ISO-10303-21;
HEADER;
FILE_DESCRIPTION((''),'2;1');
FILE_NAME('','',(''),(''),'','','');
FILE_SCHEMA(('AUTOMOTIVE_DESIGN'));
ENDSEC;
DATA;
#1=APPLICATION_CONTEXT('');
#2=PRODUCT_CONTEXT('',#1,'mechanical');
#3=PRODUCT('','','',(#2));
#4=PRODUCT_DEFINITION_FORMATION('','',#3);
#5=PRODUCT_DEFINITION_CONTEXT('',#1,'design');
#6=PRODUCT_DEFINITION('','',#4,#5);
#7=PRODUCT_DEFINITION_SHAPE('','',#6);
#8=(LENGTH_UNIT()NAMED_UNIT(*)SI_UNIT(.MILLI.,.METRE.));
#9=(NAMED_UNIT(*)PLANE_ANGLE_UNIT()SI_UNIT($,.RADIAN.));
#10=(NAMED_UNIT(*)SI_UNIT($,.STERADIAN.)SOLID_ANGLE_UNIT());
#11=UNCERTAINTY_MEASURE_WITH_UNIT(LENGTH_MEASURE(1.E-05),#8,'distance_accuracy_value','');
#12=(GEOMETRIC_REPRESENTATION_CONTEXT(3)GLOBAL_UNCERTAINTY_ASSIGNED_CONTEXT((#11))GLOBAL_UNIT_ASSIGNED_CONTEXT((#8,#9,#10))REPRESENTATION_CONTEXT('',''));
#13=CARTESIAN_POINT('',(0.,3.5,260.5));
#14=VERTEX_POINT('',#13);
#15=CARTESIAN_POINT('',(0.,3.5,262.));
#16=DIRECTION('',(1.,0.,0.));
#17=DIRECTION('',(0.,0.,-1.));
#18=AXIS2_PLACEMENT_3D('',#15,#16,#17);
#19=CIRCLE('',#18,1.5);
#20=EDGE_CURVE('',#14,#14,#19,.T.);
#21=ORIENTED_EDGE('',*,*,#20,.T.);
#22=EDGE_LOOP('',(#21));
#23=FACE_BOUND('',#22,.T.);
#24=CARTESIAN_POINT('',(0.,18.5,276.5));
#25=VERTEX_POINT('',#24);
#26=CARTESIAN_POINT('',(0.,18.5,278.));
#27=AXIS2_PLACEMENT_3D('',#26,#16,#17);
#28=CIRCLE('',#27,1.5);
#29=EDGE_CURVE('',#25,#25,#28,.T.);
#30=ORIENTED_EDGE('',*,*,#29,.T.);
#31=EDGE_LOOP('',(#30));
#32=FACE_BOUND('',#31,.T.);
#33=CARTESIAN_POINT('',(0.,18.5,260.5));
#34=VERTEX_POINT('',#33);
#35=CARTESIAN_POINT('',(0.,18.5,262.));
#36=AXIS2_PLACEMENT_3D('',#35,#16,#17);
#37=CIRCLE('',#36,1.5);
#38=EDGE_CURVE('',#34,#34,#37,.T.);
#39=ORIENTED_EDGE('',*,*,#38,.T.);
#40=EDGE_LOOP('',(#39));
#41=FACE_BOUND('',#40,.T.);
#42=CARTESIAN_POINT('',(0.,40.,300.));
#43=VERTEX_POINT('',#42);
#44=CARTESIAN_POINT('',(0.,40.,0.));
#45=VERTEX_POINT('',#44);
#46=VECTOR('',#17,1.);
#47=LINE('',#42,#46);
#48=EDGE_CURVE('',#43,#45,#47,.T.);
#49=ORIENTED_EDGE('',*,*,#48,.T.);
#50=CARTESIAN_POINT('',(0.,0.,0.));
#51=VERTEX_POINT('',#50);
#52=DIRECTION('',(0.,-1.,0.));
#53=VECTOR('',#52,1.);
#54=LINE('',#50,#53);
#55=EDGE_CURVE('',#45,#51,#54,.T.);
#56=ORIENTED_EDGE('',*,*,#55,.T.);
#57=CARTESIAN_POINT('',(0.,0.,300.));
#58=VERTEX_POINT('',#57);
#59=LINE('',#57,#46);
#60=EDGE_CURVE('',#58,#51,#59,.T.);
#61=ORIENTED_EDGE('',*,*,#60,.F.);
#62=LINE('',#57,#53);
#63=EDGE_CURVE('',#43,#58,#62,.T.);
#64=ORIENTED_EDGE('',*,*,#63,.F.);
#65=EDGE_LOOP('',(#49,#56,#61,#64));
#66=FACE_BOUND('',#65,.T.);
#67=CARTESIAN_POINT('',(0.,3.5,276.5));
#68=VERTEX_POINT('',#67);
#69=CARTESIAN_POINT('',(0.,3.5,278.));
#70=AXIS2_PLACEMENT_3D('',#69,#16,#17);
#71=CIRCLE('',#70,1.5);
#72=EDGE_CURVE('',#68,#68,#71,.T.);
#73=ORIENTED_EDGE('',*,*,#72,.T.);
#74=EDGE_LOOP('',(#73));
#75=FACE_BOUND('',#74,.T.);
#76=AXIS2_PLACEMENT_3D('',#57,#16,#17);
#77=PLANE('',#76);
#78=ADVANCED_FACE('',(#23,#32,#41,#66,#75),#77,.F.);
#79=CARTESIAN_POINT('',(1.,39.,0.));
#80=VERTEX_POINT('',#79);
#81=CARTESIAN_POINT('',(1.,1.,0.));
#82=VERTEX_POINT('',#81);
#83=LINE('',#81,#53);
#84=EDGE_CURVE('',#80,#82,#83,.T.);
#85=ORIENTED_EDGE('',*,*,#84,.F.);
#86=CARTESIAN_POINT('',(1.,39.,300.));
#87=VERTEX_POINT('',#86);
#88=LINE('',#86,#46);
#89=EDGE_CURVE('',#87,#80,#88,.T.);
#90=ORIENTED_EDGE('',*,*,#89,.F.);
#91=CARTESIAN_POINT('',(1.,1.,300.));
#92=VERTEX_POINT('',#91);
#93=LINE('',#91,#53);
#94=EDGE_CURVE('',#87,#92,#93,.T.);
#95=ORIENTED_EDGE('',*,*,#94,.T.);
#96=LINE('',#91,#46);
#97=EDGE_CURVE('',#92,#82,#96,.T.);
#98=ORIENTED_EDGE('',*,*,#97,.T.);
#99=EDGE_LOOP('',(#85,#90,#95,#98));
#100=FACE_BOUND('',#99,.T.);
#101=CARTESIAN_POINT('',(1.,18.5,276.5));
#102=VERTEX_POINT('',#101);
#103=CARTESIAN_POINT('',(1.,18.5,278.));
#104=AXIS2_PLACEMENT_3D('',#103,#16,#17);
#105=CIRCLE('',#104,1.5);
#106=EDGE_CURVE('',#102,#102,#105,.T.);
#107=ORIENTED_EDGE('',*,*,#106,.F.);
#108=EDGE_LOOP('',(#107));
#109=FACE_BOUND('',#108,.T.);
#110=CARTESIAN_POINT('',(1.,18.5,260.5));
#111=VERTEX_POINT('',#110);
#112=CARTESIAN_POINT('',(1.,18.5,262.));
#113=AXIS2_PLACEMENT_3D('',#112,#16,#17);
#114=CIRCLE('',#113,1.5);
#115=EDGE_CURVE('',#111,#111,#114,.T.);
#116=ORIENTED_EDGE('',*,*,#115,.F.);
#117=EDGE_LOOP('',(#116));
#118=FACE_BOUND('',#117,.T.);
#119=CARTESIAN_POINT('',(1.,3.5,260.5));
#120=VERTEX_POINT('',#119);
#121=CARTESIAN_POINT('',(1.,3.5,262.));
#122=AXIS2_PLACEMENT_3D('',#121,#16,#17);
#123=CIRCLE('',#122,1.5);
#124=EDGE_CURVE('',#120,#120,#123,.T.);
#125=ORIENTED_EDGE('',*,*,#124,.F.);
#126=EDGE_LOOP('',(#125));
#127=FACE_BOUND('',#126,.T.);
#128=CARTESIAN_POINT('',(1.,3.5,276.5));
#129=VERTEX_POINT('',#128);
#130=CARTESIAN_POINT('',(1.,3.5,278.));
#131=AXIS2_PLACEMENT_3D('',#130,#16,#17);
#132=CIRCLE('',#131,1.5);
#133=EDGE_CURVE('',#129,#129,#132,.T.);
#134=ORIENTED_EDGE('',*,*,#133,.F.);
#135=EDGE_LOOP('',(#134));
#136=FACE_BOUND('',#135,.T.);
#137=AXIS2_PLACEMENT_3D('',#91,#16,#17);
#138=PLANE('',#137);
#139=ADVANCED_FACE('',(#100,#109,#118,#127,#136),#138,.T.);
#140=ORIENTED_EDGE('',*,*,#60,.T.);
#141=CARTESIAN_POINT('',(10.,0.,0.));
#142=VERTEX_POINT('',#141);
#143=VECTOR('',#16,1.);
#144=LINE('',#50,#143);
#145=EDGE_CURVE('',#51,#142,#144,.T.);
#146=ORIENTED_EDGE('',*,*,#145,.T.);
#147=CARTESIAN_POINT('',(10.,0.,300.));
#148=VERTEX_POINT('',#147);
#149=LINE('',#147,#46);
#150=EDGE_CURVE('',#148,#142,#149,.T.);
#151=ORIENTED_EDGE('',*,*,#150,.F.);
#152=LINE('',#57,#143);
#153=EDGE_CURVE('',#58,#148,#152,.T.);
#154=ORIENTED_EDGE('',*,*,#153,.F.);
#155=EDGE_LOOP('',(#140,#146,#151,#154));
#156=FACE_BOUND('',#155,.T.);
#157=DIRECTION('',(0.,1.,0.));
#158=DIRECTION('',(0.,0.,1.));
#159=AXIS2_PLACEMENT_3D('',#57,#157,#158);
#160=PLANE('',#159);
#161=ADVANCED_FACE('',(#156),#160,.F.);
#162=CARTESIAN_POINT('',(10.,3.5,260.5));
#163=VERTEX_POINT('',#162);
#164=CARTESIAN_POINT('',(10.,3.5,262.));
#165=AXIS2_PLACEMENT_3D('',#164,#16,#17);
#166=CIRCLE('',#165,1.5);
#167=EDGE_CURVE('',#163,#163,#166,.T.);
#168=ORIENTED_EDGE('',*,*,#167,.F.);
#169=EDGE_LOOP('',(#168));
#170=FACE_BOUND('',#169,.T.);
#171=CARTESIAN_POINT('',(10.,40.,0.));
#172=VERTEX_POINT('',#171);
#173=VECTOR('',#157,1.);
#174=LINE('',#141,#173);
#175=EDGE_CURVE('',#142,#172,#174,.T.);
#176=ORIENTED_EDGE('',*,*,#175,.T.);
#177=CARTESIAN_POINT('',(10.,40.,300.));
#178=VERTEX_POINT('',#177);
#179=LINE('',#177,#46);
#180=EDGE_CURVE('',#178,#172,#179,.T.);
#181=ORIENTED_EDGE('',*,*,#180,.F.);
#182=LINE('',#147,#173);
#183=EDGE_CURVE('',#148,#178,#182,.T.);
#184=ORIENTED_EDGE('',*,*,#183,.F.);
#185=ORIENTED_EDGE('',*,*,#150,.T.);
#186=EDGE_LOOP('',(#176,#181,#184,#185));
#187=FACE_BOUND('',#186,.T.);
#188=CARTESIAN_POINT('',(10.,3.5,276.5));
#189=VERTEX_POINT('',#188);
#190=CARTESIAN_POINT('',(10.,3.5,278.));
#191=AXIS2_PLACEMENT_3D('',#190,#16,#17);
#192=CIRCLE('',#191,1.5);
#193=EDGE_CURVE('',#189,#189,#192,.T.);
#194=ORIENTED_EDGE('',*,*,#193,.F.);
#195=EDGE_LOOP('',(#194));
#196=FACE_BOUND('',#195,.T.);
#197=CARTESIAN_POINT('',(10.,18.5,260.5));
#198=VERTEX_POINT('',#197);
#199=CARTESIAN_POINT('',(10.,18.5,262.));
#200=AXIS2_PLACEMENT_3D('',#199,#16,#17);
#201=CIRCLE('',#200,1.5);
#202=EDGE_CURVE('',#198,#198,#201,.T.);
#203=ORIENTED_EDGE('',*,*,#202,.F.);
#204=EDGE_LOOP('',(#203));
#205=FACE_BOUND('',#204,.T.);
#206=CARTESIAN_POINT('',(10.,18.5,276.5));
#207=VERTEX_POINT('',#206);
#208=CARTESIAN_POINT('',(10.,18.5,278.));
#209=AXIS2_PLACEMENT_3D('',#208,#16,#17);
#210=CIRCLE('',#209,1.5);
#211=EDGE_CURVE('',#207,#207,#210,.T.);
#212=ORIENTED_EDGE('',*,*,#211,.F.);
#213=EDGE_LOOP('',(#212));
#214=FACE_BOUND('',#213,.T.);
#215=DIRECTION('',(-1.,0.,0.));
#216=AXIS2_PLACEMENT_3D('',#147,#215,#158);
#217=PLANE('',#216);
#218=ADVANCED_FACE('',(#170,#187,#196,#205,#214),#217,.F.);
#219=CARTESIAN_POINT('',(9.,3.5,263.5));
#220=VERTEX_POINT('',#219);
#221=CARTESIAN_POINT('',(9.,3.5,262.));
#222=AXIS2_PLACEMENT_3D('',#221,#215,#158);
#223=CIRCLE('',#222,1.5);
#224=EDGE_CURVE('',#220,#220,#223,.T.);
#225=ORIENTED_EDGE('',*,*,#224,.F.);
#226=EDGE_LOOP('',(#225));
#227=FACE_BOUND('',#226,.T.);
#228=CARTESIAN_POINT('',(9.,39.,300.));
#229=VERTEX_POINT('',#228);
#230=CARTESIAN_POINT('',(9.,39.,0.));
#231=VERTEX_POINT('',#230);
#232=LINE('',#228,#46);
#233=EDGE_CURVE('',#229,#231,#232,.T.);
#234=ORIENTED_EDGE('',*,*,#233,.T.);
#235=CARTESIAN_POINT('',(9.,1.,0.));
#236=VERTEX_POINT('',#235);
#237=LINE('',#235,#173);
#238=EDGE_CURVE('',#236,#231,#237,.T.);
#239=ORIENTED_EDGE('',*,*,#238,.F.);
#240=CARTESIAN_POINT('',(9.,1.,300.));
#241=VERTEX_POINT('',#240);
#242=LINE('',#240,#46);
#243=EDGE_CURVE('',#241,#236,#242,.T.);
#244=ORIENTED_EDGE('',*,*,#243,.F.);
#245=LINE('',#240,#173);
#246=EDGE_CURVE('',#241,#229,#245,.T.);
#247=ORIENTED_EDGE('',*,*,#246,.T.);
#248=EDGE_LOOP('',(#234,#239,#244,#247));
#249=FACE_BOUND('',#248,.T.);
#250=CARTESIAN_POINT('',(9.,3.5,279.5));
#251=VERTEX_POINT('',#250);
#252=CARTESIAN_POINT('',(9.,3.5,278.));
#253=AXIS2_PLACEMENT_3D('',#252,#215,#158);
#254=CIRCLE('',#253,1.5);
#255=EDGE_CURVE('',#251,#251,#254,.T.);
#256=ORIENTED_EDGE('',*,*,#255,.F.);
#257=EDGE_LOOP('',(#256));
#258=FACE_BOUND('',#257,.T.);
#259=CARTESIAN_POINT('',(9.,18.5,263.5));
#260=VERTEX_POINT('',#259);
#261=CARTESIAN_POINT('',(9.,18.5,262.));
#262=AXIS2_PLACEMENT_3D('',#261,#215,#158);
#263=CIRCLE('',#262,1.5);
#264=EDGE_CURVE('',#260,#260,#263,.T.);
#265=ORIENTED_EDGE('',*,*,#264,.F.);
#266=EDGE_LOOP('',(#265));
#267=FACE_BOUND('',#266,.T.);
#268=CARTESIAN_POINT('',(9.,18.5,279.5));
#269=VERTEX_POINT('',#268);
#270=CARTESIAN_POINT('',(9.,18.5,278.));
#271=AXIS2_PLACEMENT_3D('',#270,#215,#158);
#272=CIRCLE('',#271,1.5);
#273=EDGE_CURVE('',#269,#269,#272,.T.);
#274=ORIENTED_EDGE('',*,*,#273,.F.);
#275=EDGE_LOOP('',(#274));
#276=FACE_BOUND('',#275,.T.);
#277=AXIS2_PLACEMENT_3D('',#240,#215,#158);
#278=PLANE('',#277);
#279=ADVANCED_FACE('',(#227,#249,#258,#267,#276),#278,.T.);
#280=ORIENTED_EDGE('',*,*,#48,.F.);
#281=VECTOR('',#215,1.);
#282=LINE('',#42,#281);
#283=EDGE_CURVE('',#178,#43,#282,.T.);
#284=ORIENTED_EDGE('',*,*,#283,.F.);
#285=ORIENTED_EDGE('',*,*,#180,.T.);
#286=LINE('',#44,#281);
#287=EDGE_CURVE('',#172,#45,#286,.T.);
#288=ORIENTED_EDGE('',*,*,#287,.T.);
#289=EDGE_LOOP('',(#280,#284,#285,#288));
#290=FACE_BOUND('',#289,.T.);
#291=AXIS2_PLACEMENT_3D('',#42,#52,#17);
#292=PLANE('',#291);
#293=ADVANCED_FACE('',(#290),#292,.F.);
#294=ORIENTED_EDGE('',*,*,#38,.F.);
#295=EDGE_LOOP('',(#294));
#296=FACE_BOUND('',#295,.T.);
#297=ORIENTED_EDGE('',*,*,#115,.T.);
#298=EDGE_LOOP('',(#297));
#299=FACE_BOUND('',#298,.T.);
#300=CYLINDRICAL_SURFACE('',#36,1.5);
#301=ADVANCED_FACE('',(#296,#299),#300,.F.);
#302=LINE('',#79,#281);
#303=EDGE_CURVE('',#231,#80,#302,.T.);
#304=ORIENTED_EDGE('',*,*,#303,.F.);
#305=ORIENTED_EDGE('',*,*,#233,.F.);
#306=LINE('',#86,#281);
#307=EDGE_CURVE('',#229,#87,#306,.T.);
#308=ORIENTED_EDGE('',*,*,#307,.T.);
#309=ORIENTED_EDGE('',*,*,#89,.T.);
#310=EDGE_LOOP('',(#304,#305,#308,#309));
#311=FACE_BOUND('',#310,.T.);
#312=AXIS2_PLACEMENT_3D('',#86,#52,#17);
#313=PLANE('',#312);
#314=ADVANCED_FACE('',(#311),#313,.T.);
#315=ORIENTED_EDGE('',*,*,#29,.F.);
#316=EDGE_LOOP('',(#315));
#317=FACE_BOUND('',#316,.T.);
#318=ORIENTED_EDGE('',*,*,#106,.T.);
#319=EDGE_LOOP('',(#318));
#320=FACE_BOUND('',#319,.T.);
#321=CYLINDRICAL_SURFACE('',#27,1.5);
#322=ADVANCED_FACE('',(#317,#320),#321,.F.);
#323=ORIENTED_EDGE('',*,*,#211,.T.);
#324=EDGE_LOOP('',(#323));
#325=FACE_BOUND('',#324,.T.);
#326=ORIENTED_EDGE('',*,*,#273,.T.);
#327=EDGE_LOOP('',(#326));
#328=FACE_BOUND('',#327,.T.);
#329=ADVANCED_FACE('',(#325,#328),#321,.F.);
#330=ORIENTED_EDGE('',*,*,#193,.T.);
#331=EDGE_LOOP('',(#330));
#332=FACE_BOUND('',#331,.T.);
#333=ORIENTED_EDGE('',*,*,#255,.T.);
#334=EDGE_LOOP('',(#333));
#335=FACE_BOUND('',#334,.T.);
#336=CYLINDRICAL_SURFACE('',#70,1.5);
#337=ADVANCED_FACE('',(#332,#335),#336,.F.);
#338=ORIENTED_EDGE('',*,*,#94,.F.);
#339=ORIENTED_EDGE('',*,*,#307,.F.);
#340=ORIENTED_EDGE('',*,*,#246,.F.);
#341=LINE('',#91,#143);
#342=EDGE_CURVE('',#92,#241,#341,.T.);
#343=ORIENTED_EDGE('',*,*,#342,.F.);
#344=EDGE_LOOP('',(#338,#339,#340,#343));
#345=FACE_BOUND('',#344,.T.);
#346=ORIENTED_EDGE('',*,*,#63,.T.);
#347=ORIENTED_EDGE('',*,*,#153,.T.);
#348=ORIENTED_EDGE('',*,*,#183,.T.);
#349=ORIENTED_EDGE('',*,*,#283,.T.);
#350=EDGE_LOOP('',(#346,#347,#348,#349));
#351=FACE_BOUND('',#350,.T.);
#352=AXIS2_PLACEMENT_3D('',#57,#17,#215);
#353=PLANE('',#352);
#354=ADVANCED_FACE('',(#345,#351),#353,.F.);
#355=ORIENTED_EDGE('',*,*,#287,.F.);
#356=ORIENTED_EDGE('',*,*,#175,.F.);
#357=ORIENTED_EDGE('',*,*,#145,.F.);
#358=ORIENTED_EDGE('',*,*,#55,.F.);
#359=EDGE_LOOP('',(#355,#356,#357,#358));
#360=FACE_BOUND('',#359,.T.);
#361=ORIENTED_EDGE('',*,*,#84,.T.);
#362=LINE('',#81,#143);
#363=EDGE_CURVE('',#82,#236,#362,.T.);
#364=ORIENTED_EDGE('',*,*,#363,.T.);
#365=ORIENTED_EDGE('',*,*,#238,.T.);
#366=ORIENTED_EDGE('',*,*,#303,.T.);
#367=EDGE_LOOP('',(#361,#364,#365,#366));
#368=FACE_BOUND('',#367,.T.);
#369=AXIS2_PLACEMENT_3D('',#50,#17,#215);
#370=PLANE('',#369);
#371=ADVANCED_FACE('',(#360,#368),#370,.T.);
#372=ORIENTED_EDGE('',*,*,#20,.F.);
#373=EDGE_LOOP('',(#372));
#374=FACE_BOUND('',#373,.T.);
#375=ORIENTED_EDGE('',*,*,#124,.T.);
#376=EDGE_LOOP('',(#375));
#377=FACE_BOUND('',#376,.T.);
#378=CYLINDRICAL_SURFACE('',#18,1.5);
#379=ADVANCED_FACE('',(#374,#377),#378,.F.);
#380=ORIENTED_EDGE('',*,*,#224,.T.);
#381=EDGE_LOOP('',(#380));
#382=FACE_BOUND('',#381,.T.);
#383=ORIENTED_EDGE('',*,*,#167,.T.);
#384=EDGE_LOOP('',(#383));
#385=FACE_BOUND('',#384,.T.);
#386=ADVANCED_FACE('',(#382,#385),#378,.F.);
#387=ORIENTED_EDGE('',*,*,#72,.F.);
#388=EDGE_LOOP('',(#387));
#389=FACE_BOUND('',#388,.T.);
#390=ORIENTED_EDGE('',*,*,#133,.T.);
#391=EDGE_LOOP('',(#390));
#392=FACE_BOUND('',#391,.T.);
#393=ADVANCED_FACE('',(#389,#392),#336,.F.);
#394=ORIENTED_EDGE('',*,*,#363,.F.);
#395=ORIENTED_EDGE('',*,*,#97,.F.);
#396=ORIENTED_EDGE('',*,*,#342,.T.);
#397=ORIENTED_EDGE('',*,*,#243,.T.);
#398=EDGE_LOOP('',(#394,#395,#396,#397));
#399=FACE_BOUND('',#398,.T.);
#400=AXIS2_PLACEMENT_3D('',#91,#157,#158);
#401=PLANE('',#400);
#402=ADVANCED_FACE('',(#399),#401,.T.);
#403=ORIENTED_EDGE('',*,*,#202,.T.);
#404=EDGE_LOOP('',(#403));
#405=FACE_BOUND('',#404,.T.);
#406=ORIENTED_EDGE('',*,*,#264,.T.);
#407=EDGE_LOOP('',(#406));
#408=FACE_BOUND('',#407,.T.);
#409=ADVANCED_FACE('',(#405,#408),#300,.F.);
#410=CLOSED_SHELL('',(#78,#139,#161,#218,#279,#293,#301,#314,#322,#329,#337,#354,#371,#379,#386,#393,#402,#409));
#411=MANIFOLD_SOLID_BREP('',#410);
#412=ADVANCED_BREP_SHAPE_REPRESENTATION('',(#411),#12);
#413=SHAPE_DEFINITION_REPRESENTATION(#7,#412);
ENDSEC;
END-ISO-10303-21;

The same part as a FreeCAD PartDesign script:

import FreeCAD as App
import Part
import Sketcher
from FreeCAD import Vector

doc = App.newDocument("Part")
params = doc.addObject("Spreadsheet::Sheet", "Params")
for row, (alias, value) in enumerate([
    ("sketch1_width", "10 mm"),
    ("sketch1_width2", "8 mm"),
    ("sketch1_height", "40 mm"),
    ("sketch1_height2", "38 mm"),
    ("pad1_length", "300 mm"),
    ("sketch2_diameter", "3 mm"),
    ("pocket1_length", "10 mm"),
], start=1):
    params.set(f"A{row}", alias)
    params.set(f"B{row}", "=" + value)
    params.setAlias(f"B{row}", alias)

body = doc.addObject("PartDesign::Body", "Body")

# Sketch on XY plane
sketch1 = doc.addObject("Sketcher::SketchObject", "Sketch")
body.addObject(sketch1)
sketch1.AttachmentSupport = (doc.XY_Plane, [""])
sketch1.MapMode = "FlatFace"
sketch1.addGeometry([
    Part.LineSegment(Vector(0, 40, 0), Vector(0, 0, 0)),  # 0
    Part.LineSegment(Vector(0, 0, 0), Vector(10, 0, 0)),  # 1
    Part.LineSegment(Vector(10, 0, 0), Vector(10, 40, 0)),  # 2
    Part.LineSegment(Vector(10, 40, 0), Vector(0, 40, 0)),  # 3
    Part.LineSegment(Vector(9, 1, 0), Vector(1, 1, 0)),  # 4
    Part.LineSegment(Vector(1, 1, 0), Vector(1, 39, 0)),  # 5
    Part.LineSegment(Vector(1, 39, 0), Vector(9, 39, 0)),  # 6
    Part.LineSegment(Vector(9, 39, 0), Vector(9, 1, 0)),  # 7
], False)
sketch1.addConstraint([
    Sketcher.Constraint("Coincident", 0, 2, 1, 1),
    Sketcher.Constraint("Coincident", 1, 2, 2, 1),
    Sketcher.Constraint("Coincident", 2, 2, 3, 1),
    Sketcher.Constraint("Coincident", 3, 2, 0, 1),
    Sketcher.Constraint("Coincident", 4, 2, 5, 1),
    Sketcher.Constraint("Coincident", 5, 2, 6, 1),
    Sketcher.Constraint("Coincident", 6, 2, 7, 1),
    Sketcher.Constraint("Coincident", 7, 2, 4, 1),
    Sketcher.Constraint("Vertical", 0),
    Sketcher.Constraint("Horizontal", 1),
    Sketcher.Constraint("Vertical", 2),
    Sketcher.Constraint("Horizontal", 3),
    Sketcher.Constraint("Horizontal", 4),
    Sketcher.Constraint("Vertical", 5),
    Sketcher.Constraint("Horizontal", 6),
    Sketcher.Constraint("Vertical", 7),
    Sketcher.Constraint("Coincident", 0, 2, -1, 1),
    Sketcher.Constraint("DistanceX", 1, 1, 1, 2, 10.0),
    Sketcher.Constraint("DistanceX", 4, 2, 4, 1, 8.0),
    Sketcher.Constraint("DistanceY", 0, 2, 0, 1, 40.0),
    Sketcher.Constraint("DistanceY", 5, 1, 5, 2, 38.0),
    Sketcher.Constraint("DistanceX", -1, 1, 4, 2, 1.0),
    Sketcher.Constraint("DistanceY", -1, 1, 4, 2, 1.0),
])
sketch1.setExpression("Constraints[17]", "Params.sketch1_width")
sketch1.setExpression("Constraints[18]", "Params.sketch1_width2")
sketch1.setExpression("Constraints[19]", "Params.sketch1_height")
sketch1.setExpression("Constraints[20]", "Params.sketch1_height2")
pad1 = doc.addObject("PartDesign::Pad", "Pad")
body.addObject(pad1)
pad1.Profile = sketch1
pad1.setExpression("Length", "Params.pad1_length")

# Sketch on YZ plane
sketch2 = doc.addObject("Sketcher::SketchObject", "Sketch001")
body.addObject(sketch2)
sketch2.AttachmentSupport = (doc.YZ_Plane, [""])
sketch2.MapMode = "FlatFace"
sketch2.AttachmentOffset = App.Placement(Vector(0, 0, 10), App.Rotation())
sketch2.addGeometry([
    Part.Circle(Vector(18.5, 278, 0), Vector(0, 0, 1), 1.5),
    Part.Circle(Vector(18.5, 262, 0), Vector(0, 0, 1), 1.5),
    Part.Circle(Vector(3.5, 262, 0), Vector(0, 0, 1), 1.5),
    Part.Circle(Vector(3.5, 278, 0), Vector(0, 0, 1), 1.5),
], False)
sketch2.addConstraint([
    Sketcher.Constraint("Equal", 0, 1),
    Sketcher.Constraint("Equal", 1, 2),
    Sketcher.Constraint("Equal", 2, 3),
    Sketcher.Constraint("Horizontal", 1, 3, 2, 3),
    Sketcher.Constraint("Horizontal", 0, 3, 3, 3),
    Sketcher.Constraint("Vertical", 0, 3, 1, 3),
    Sketcher.Constraint("Vertical", 2, 3, 3, 3),
    Sketcher.Constraint("Diameter", 0, 3.0),
    Sketcher.Constraint("DistanceY", -1, 1, 0, 3, 278.0),
    Sketcher.Constraint("DistanceY", -1, 1, 1, 3, 262.0),
    Sketcher.Constraint("DistanceX", 2, 3, 1, 3, 15.0),
    Sketcher.Constraint("DistanceX", -1, 1, 0, 3, 18.5),
])
sketch2.setExpression("Constraints[7]", "Params.sketch2_diameter")
pocket1 = doc.addObject("PartDesign::Pocket", "Pocket")
body.addObject(pocket1)
pocket1.Profile = sketch2
pocket1.setExpression("Length", "Params.pocket1_length")

doc.recompute()
